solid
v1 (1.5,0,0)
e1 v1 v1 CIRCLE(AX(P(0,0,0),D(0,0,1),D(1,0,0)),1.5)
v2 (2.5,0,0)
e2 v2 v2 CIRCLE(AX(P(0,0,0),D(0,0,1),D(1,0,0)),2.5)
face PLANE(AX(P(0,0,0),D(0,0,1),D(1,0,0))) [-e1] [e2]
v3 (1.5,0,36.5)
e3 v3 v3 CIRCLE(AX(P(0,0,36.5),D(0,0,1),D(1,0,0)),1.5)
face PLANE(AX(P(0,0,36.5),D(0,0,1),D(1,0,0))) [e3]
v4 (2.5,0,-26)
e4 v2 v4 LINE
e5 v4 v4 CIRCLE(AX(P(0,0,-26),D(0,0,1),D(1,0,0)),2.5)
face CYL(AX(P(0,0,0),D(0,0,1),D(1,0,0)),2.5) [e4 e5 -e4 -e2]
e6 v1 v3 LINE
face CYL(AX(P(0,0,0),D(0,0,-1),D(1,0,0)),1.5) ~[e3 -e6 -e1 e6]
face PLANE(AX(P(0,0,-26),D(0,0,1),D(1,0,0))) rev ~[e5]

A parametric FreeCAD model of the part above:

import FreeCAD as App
import Part
import Sketcher
Q = App.Units.Quantity

doc = App.newDocument("Part")
body = doc.addObject("PartDesign::Body", "Body")

# Sketch on XY plane
sketch1 = doc.addObject("Sketcher::SketchObject", "Sketch")
body.addObject(sketch1)
sketch1.AttachmentSupport = (doc.XY_Plane, [""])
sketch1.MapMode = "FlatFace"
sketch1.addGeometry(Part.Circle(App.Vector(0, 0, 0), App.Vector(0, 0, 1), 1.5), False)
sketch1.addConstraint(Sketcher.Constraint("Coincident", 0, 3, -1, 1))
sketch1.addConstraint(Sketcher.Constraint("Diameter", 0, Q("3 mm")))
pad1 = doc.addObject("PartDesign::Pad", "Pad")
body.addObject(pad1)
pad1.Profile = sketch1
pad1.Length = 36.5

# Sketch on XY plane
sketch2 = doc.addObject("Sketcher::SketchObject", "Sketch001")
body.addObject(sketch2)
sketch2.AttachmentSupport = (doc.XY_Plane, [""])
sketch2.MapMode = "FlatFace"
sketch2.addGeometry(Part.Circle(App.Vector(0, 0, 0), App.Vector(0, 0, 1), 2.5), False)
sketch2.addConstraint(Sketcher.Constraint("Coincident", 0, 3, -1, 1))
sketch2.addConstraint(Sketcher.Constraint("Diameter", 0, Q("5 mm")))
pad2 = doc.addObject("PartDesign::Pad", "Pad001")
body.addObject(pad2)
pad2.Profile = sketch2
pad2.Length = 26
pad2.Reversed = True

doc.recompute()
